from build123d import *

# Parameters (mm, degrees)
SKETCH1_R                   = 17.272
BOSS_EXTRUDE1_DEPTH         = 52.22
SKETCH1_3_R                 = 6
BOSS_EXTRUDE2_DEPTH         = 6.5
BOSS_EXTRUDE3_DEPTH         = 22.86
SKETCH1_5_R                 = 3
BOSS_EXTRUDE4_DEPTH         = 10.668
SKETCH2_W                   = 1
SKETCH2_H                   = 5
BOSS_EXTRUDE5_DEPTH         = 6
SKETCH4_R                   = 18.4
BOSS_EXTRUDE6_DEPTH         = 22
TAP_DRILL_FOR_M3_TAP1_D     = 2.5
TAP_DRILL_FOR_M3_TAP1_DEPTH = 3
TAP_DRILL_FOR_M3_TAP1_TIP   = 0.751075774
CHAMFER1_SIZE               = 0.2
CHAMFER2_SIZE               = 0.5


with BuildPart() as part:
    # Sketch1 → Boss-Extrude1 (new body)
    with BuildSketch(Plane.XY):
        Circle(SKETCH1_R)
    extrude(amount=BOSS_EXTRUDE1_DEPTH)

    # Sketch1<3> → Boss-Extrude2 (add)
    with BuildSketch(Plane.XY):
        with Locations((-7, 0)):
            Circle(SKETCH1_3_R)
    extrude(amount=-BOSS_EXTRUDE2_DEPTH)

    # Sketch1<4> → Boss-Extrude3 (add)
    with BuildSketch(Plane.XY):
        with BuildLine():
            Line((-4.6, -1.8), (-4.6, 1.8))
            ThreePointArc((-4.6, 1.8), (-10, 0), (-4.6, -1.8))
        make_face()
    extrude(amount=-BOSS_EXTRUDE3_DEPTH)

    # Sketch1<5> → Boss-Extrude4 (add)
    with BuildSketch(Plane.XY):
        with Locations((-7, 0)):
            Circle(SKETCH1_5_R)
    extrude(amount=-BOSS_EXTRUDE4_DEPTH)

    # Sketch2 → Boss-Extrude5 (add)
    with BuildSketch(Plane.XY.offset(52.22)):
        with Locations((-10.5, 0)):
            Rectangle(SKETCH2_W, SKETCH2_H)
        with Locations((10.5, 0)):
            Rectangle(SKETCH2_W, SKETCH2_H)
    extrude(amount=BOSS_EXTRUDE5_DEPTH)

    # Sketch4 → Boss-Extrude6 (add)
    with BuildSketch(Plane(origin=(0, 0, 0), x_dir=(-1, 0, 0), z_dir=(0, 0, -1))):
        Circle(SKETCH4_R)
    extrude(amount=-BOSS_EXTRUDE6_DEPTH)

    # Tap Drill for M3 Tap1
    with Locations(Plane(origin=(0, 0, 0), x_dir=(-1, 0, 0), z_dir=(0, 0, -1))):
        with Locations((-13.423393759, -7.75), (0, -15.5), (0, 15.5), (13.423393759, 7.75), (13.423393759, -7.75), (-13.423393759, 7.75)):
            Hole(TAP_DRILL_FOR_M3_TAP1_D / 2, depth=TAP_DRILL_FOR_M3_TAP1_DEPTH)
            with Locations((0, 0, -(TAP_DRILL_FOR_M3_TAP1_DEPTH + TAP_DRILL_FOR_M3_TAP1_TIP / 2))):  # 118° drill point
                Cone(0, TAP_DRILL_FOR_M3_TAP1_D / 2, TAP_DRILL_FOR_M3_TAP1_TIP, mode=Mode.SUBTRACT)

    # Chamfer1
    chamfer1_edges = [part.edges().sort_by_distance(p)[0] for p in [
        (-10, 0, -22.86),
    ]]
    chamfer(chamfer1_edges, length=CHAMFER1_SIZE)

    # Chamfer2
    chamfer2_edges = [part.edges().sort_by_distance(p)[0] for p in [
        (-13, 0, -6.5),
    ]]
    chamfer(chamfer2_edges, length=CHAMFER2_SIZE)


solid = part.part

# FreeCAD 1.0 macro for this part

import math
import FreeCAD as App
import Part
import Sketcher
from FreeCAD import Vector
Q = App.Units.Quantity


def edges_at(feature, points):
    """Names of the edges that pass closest to the given points."""
    edges = feature.Shape.Edges
    near = lambda p: min(range(len(edges)), key=lambda i: edges[i].distToShape(Part.Vertex(*p))[0])
    return sorted({f"Edge{near(p) + 1}" for p in points})


def add_polygon(sketch, points):
    """Adds a closed chain of lines whose ends are joined by coincident constraints."""
    first, n = sketch.GeometryCount, len(points)
    for a, b in zip(points, points[1:] + points[:1]):
        sketch.addGeometry(Part.LineSegment(App.Vector(*a, 0), App.Vector(*b, 0)), False)
    for i in range(n):
        sketch.addConstraint(Sketcher.Constraint("Coincident", first + i, 2, first + (i + 1) % n, 1))

doc = App.newDocument("Part")
body = doc.addObject("PartDesign::Body", "Body")

sketch1 = body.newObject("Sketcher::SketchObject", "Sketch")
sketch1.AttachmentSupport = (doc.getObject("XY_Plane"), [""])
sketch1.MapMode = "FlatFace"
sketch1.addGeometry(Part.Circle(Vector(0, 0, 0), Vector(0, 0, 1), 17), False)
sketch1.addConstraint(Sketcher.Constraint("Coincident", 0, 3, -1, 1))
sketch1.addConstraint(Sketcher.Constraint("Diameter", 0, Q("34.544 mm")))
pad1 = body.newObject("PartDesign::Pad", "Pad")
pad1.Profile = sketch1
pad1.Length = 52.22

sketch2 = body.newObject("Sketcher::SketchObject", "Sketch001")
sketch2.AttachmentSupport = (doc.getObject("XY_Plane"), [""])
sketch2.MapMode = "FlatFace"
sketch2.addGeometry(Part.Circle(Vector(-7, 0, 0), Vector(0, 0, 1), 6), False)
sketch2.addConstraint(Sketcher.Constraint("PointOnObject", 0, 3, -1))
sketch2.addConstraint(Sketcher.Constraint("Diameter", 0, Q("12 mm")))
sketch2.addConstraint(Sketcher.Constraint("DistanceX", 0, 3, -1, 1, Q("7 mm")))
pad2 = body.newObject("PartDesign::Pad", "Pad001")
pad2.Profile = sketch2
pad2.Length = 6.5
pad2.Reversed = True

sketch3 = body.newObject("Sketcher::SketchObject", "Sketch002")
sketch3.AttachmentSupport = (doc.getObject("XY_Plane"), [""])
sketch3.MapMode = "FlatFace"
sketch3.addGeometry(Part.LineSegment(Vector(-4.6, -1.8, 0), Vector(-4.6, 1.8, 0)), False)
sketch3.addGeometry(Part.ArcOfCircle(Part.Circle(Vector(-7, 0, 0), Vector(0, 0, 1), 3), math.radians(37), math.radians(323)), False)
sketch3.addConstraint(Sketcher.Constraint("Coincident", 0, 1, 1, 2))
sketch3.addConstraint(Sketcher.Constraint("Coincident", 1, 1, 0, 2))
sketch3.addConstraint(Sketcher.Constraint("Vertical", 0))
sketch3.addConstraint(Sketcher.Constraint("PointOnObject", 1, 3, -1))
sketch3.addConstraint(Sketcher.Constraint("Radius", 1, Q("3 mm")))
sketch3.addConstraint(Sketcher.Constraint("DistanceY", 0, 1, 0, 2, Q("3.6 mm")))
sketch3.addConstraint(Sketcher.Constraint("DistanceX", 1, 3, -1, 1, Q("7 mm")))
pad3 = body.newObject("PartDesign::Pad", "Pad002")
pad3.Profile = sketch3
pad3.Length = 22.86
pad3.Reversed = True

sketch4 = body.newObject("Sketcher::SketchObject", "Sketch003")
sketch4.AttachmentSupport = (doc.getObject("XY_Plane"), [""])
sketch4.MapMode = "FlatFace"
sketch4.addGeometry(Part.Circle(Vector(-7, 0, 0), Vector(0, 0, 1), 3), False)
sketch4.addConstraint(Sketcher.Constraint("PointOnObject", 0, 3, -1))
sketch4.addConstraint(Sketcher.Constraint("Diameter", 0, Q("6 mm")))
sketch4.addConstraint(Sketcher.Constraint("DistanceX", 0, 3, -1, 1, Q("7 mm")))
pad4 = body.newObject("PartDesign::Pad", "Pad003")
pad4.Profile = sketch4
pad4.Length = 10.668
pad4.Reversed = True

sketch5 = body.newObject("Sketcher::SketchObject", "Sketch004")
sketch5.AttachmentSupport = (doc.getObject("XY_Plane"), [""])
sketch5.MapMode = "FlatFace"
sketch5.AttachmentOffset = App.Placement(Vector(0, 0, 52.22), App.Rotation())
add_polygon(sketch5, [(-11, 2.5), (-11, -2.5), (-10, -2.5), (-10, 2.5)])
add_polygon(sketch5, [(10, 2.5), (10, -2.5), (11, -2.5), (11, 2.5)])
sketch5.addConstraint(Sketcher.Constraint("Vertical", 0))
sketch5.addConstraint(Sketcher.Constraint("Horizontal", 1))
sketch5.addConstraint(Sketcher.Constraint("Vertical", 2))
sketch5.addConstraint(Sketcher.Constraint("Horizontal", 3))
sketch5.addConstraint(Sketcher.Constraint("Vertical", 4))
sketch5.addConstraint(Sketcher.Constraint("Horizontal", 5))
sketch5.addConstraint(Sketcher.Constraint("Vertical", 6))
sketch5.addConstraint(Sketcher.Constraint("Horizontal", 7))
sketch5.addConstraint(Sketcher.Constraint("Symmetric", 2, 2, 4, 2, -1, 1))
sketch5.addConstraint(Sketcher.Constraint("Symmetric", 0, 2, 6, 2, -1, 1))
sketch5.addConstraint(Sketcher.Constraint("Horizontal", 1, 2, 4, 2))
sketch5.addConstraint(Sketcher.Constraint("DistanceX", 1, 1, 1, 2, Q("1 mm")))
sketch5.addConstraint(Sketcher.Constraint("DistanceY", 0, 2, 0, 1, Q("5 mm")))
sketch5.addConstraint(Sketcher.Constraint("DistanceX", 0, 2, -1, 1, Q("11 mm")))
pad5 = body.newObject("PartDesign::Pad", "Pad004")
pad5.Profile = sketch5
pad5.Length = 6

sketch6 = body.newObject("Sketcher::SketchObject", "Sketch005")
sketch6.AttachmentSupport = (doc.getObject("XY_Plane"), [""])
sketch6.MapMode = "FlatFace"
sketch6.addGeometry(Part.Circle(Vector(0, 0, 0), Vector(0, 0, 1), 18), False)
sketch6.addConstraint(Sketcher.Constraint("Coincident", 0, 3, -1, 1))
sketch6.addConstraint(Sketcher.Constraint("Diameter", 0, Q("36.8 mm")))
pad6 = body.newObject("PartDesign::Pad", "Pad005")
pad6.Profile = sketch6
pad6.Length = 22

sketch7 = body.newObject("Sketcher::SketchObject", "Sketch006")
sketch7.AttachmentSupport = (doc.getObject("XY_Plane"), [""])
sketch7.MapMode = "FlatFace"
sketch7.addGeometry(Part.Circle(Vector(13.4, -7.8, 0), Vector(0, 0, 1), 1.2), False)
sketch7.addGeometry(Part.Circle(Vector(0, -15.5, 0), Vector(0, 0, 1), 1.2), False)
sketch7.addGeometry(Part.Circle(Vector(0, 15.5, 0), Vector(0, 0, 1), 1.2), False)
sketch7.addGeometry(Part.Circle(Vector(-13.4, 7.8, 0), Vector(0, 0, 1), 1.2), False)
sketch7.addGeometry(Part.Circle(Vector(-13.4, -7.8, 0), Vector(0, 0, 1), 1.2), False)
sketch7.addGeometry(Part.Circle(Vector(13.4, 7.8, 0), Vector(0, 0, 1), 1.2), False)
sketch7.addConstraint(Sketcher.Constraint("Equal", 0, 1))
sketch7.addConstraint(Sketcher.Constraint("Equal", 1, 2))
sketch7.addConstraint(Sketcher.Constraint("Equal", 2, 3))
sketch7.addConstraint(Sketcher.Constraint("Equal", 3, 4))
sketch7.addConstraint(Sketcher.Constraint("Equal", 4, 5))
sketch7.addConstraint(Sketcher.Constraint("Symmetric", 1, 3, 2, 3, -1, 1))
sketch7.addConstraint(Sketcher.Constraint("Symmetric", 0, 3, 3, 3, -1, 1))
sketch7.addConstraint(Sketcher.Constraint("Symmetric", 4, 3, 5, 3, -1, 1))
sketch7.addConstraint(Sketcher.Constraint("Symmetric", 0, 3, 4, 3, -2))
sketch7.addConstraint(Sketcher.Constraint("PointOnObject", 1, 3, -2))
sketch7.addConstraint(Sketcher.Constraint("Diameter", 0, Q("2.5 mm")))
sketch7.addConstraint(Sketcher.Constraint("DistanceY", 1, 3, 2, 3, Q("31 mm")))
sketch7.addConstraint(Sketcher.Constraint("DistanceY", 0, 3, 3, 3, Q("15.5 mm")))
sketch7.addConstraint(Sketcher.Constraint("DistanceX", -1, 1, 0, 3, Q("13.423394 mm")))
doc.recompute()
hole = body.newObject("PartDesign::Hole", "Hole")
hole.Profile = sketch7
hole.ThreadType = "None"
hole.Diameter = 2.5
hole.DepthType = "Dimension"
hole.Depth = 3
hole.DrillPoint = "Angled"
hole.DrillPointAngle = 118
hole.Reversed = True
doc.recompute()

chamfer = body.newObject("PartDesign::Chamfer", "Chamfer")
chamfer.Base = (hole, edges_at(hole, [(-10, 0, -22.86)]))
chamfer.Size = 0.2
doc.recompute()

chamfer2 = body.newObject("PartDesign::Chamfer", "Chamfer001")
chamfer2.Base = (chamfer, edges_at(chamfer, [(-13, 0, -6.5)]))
chamfer2.Size = 0.5

doc.recompute()
